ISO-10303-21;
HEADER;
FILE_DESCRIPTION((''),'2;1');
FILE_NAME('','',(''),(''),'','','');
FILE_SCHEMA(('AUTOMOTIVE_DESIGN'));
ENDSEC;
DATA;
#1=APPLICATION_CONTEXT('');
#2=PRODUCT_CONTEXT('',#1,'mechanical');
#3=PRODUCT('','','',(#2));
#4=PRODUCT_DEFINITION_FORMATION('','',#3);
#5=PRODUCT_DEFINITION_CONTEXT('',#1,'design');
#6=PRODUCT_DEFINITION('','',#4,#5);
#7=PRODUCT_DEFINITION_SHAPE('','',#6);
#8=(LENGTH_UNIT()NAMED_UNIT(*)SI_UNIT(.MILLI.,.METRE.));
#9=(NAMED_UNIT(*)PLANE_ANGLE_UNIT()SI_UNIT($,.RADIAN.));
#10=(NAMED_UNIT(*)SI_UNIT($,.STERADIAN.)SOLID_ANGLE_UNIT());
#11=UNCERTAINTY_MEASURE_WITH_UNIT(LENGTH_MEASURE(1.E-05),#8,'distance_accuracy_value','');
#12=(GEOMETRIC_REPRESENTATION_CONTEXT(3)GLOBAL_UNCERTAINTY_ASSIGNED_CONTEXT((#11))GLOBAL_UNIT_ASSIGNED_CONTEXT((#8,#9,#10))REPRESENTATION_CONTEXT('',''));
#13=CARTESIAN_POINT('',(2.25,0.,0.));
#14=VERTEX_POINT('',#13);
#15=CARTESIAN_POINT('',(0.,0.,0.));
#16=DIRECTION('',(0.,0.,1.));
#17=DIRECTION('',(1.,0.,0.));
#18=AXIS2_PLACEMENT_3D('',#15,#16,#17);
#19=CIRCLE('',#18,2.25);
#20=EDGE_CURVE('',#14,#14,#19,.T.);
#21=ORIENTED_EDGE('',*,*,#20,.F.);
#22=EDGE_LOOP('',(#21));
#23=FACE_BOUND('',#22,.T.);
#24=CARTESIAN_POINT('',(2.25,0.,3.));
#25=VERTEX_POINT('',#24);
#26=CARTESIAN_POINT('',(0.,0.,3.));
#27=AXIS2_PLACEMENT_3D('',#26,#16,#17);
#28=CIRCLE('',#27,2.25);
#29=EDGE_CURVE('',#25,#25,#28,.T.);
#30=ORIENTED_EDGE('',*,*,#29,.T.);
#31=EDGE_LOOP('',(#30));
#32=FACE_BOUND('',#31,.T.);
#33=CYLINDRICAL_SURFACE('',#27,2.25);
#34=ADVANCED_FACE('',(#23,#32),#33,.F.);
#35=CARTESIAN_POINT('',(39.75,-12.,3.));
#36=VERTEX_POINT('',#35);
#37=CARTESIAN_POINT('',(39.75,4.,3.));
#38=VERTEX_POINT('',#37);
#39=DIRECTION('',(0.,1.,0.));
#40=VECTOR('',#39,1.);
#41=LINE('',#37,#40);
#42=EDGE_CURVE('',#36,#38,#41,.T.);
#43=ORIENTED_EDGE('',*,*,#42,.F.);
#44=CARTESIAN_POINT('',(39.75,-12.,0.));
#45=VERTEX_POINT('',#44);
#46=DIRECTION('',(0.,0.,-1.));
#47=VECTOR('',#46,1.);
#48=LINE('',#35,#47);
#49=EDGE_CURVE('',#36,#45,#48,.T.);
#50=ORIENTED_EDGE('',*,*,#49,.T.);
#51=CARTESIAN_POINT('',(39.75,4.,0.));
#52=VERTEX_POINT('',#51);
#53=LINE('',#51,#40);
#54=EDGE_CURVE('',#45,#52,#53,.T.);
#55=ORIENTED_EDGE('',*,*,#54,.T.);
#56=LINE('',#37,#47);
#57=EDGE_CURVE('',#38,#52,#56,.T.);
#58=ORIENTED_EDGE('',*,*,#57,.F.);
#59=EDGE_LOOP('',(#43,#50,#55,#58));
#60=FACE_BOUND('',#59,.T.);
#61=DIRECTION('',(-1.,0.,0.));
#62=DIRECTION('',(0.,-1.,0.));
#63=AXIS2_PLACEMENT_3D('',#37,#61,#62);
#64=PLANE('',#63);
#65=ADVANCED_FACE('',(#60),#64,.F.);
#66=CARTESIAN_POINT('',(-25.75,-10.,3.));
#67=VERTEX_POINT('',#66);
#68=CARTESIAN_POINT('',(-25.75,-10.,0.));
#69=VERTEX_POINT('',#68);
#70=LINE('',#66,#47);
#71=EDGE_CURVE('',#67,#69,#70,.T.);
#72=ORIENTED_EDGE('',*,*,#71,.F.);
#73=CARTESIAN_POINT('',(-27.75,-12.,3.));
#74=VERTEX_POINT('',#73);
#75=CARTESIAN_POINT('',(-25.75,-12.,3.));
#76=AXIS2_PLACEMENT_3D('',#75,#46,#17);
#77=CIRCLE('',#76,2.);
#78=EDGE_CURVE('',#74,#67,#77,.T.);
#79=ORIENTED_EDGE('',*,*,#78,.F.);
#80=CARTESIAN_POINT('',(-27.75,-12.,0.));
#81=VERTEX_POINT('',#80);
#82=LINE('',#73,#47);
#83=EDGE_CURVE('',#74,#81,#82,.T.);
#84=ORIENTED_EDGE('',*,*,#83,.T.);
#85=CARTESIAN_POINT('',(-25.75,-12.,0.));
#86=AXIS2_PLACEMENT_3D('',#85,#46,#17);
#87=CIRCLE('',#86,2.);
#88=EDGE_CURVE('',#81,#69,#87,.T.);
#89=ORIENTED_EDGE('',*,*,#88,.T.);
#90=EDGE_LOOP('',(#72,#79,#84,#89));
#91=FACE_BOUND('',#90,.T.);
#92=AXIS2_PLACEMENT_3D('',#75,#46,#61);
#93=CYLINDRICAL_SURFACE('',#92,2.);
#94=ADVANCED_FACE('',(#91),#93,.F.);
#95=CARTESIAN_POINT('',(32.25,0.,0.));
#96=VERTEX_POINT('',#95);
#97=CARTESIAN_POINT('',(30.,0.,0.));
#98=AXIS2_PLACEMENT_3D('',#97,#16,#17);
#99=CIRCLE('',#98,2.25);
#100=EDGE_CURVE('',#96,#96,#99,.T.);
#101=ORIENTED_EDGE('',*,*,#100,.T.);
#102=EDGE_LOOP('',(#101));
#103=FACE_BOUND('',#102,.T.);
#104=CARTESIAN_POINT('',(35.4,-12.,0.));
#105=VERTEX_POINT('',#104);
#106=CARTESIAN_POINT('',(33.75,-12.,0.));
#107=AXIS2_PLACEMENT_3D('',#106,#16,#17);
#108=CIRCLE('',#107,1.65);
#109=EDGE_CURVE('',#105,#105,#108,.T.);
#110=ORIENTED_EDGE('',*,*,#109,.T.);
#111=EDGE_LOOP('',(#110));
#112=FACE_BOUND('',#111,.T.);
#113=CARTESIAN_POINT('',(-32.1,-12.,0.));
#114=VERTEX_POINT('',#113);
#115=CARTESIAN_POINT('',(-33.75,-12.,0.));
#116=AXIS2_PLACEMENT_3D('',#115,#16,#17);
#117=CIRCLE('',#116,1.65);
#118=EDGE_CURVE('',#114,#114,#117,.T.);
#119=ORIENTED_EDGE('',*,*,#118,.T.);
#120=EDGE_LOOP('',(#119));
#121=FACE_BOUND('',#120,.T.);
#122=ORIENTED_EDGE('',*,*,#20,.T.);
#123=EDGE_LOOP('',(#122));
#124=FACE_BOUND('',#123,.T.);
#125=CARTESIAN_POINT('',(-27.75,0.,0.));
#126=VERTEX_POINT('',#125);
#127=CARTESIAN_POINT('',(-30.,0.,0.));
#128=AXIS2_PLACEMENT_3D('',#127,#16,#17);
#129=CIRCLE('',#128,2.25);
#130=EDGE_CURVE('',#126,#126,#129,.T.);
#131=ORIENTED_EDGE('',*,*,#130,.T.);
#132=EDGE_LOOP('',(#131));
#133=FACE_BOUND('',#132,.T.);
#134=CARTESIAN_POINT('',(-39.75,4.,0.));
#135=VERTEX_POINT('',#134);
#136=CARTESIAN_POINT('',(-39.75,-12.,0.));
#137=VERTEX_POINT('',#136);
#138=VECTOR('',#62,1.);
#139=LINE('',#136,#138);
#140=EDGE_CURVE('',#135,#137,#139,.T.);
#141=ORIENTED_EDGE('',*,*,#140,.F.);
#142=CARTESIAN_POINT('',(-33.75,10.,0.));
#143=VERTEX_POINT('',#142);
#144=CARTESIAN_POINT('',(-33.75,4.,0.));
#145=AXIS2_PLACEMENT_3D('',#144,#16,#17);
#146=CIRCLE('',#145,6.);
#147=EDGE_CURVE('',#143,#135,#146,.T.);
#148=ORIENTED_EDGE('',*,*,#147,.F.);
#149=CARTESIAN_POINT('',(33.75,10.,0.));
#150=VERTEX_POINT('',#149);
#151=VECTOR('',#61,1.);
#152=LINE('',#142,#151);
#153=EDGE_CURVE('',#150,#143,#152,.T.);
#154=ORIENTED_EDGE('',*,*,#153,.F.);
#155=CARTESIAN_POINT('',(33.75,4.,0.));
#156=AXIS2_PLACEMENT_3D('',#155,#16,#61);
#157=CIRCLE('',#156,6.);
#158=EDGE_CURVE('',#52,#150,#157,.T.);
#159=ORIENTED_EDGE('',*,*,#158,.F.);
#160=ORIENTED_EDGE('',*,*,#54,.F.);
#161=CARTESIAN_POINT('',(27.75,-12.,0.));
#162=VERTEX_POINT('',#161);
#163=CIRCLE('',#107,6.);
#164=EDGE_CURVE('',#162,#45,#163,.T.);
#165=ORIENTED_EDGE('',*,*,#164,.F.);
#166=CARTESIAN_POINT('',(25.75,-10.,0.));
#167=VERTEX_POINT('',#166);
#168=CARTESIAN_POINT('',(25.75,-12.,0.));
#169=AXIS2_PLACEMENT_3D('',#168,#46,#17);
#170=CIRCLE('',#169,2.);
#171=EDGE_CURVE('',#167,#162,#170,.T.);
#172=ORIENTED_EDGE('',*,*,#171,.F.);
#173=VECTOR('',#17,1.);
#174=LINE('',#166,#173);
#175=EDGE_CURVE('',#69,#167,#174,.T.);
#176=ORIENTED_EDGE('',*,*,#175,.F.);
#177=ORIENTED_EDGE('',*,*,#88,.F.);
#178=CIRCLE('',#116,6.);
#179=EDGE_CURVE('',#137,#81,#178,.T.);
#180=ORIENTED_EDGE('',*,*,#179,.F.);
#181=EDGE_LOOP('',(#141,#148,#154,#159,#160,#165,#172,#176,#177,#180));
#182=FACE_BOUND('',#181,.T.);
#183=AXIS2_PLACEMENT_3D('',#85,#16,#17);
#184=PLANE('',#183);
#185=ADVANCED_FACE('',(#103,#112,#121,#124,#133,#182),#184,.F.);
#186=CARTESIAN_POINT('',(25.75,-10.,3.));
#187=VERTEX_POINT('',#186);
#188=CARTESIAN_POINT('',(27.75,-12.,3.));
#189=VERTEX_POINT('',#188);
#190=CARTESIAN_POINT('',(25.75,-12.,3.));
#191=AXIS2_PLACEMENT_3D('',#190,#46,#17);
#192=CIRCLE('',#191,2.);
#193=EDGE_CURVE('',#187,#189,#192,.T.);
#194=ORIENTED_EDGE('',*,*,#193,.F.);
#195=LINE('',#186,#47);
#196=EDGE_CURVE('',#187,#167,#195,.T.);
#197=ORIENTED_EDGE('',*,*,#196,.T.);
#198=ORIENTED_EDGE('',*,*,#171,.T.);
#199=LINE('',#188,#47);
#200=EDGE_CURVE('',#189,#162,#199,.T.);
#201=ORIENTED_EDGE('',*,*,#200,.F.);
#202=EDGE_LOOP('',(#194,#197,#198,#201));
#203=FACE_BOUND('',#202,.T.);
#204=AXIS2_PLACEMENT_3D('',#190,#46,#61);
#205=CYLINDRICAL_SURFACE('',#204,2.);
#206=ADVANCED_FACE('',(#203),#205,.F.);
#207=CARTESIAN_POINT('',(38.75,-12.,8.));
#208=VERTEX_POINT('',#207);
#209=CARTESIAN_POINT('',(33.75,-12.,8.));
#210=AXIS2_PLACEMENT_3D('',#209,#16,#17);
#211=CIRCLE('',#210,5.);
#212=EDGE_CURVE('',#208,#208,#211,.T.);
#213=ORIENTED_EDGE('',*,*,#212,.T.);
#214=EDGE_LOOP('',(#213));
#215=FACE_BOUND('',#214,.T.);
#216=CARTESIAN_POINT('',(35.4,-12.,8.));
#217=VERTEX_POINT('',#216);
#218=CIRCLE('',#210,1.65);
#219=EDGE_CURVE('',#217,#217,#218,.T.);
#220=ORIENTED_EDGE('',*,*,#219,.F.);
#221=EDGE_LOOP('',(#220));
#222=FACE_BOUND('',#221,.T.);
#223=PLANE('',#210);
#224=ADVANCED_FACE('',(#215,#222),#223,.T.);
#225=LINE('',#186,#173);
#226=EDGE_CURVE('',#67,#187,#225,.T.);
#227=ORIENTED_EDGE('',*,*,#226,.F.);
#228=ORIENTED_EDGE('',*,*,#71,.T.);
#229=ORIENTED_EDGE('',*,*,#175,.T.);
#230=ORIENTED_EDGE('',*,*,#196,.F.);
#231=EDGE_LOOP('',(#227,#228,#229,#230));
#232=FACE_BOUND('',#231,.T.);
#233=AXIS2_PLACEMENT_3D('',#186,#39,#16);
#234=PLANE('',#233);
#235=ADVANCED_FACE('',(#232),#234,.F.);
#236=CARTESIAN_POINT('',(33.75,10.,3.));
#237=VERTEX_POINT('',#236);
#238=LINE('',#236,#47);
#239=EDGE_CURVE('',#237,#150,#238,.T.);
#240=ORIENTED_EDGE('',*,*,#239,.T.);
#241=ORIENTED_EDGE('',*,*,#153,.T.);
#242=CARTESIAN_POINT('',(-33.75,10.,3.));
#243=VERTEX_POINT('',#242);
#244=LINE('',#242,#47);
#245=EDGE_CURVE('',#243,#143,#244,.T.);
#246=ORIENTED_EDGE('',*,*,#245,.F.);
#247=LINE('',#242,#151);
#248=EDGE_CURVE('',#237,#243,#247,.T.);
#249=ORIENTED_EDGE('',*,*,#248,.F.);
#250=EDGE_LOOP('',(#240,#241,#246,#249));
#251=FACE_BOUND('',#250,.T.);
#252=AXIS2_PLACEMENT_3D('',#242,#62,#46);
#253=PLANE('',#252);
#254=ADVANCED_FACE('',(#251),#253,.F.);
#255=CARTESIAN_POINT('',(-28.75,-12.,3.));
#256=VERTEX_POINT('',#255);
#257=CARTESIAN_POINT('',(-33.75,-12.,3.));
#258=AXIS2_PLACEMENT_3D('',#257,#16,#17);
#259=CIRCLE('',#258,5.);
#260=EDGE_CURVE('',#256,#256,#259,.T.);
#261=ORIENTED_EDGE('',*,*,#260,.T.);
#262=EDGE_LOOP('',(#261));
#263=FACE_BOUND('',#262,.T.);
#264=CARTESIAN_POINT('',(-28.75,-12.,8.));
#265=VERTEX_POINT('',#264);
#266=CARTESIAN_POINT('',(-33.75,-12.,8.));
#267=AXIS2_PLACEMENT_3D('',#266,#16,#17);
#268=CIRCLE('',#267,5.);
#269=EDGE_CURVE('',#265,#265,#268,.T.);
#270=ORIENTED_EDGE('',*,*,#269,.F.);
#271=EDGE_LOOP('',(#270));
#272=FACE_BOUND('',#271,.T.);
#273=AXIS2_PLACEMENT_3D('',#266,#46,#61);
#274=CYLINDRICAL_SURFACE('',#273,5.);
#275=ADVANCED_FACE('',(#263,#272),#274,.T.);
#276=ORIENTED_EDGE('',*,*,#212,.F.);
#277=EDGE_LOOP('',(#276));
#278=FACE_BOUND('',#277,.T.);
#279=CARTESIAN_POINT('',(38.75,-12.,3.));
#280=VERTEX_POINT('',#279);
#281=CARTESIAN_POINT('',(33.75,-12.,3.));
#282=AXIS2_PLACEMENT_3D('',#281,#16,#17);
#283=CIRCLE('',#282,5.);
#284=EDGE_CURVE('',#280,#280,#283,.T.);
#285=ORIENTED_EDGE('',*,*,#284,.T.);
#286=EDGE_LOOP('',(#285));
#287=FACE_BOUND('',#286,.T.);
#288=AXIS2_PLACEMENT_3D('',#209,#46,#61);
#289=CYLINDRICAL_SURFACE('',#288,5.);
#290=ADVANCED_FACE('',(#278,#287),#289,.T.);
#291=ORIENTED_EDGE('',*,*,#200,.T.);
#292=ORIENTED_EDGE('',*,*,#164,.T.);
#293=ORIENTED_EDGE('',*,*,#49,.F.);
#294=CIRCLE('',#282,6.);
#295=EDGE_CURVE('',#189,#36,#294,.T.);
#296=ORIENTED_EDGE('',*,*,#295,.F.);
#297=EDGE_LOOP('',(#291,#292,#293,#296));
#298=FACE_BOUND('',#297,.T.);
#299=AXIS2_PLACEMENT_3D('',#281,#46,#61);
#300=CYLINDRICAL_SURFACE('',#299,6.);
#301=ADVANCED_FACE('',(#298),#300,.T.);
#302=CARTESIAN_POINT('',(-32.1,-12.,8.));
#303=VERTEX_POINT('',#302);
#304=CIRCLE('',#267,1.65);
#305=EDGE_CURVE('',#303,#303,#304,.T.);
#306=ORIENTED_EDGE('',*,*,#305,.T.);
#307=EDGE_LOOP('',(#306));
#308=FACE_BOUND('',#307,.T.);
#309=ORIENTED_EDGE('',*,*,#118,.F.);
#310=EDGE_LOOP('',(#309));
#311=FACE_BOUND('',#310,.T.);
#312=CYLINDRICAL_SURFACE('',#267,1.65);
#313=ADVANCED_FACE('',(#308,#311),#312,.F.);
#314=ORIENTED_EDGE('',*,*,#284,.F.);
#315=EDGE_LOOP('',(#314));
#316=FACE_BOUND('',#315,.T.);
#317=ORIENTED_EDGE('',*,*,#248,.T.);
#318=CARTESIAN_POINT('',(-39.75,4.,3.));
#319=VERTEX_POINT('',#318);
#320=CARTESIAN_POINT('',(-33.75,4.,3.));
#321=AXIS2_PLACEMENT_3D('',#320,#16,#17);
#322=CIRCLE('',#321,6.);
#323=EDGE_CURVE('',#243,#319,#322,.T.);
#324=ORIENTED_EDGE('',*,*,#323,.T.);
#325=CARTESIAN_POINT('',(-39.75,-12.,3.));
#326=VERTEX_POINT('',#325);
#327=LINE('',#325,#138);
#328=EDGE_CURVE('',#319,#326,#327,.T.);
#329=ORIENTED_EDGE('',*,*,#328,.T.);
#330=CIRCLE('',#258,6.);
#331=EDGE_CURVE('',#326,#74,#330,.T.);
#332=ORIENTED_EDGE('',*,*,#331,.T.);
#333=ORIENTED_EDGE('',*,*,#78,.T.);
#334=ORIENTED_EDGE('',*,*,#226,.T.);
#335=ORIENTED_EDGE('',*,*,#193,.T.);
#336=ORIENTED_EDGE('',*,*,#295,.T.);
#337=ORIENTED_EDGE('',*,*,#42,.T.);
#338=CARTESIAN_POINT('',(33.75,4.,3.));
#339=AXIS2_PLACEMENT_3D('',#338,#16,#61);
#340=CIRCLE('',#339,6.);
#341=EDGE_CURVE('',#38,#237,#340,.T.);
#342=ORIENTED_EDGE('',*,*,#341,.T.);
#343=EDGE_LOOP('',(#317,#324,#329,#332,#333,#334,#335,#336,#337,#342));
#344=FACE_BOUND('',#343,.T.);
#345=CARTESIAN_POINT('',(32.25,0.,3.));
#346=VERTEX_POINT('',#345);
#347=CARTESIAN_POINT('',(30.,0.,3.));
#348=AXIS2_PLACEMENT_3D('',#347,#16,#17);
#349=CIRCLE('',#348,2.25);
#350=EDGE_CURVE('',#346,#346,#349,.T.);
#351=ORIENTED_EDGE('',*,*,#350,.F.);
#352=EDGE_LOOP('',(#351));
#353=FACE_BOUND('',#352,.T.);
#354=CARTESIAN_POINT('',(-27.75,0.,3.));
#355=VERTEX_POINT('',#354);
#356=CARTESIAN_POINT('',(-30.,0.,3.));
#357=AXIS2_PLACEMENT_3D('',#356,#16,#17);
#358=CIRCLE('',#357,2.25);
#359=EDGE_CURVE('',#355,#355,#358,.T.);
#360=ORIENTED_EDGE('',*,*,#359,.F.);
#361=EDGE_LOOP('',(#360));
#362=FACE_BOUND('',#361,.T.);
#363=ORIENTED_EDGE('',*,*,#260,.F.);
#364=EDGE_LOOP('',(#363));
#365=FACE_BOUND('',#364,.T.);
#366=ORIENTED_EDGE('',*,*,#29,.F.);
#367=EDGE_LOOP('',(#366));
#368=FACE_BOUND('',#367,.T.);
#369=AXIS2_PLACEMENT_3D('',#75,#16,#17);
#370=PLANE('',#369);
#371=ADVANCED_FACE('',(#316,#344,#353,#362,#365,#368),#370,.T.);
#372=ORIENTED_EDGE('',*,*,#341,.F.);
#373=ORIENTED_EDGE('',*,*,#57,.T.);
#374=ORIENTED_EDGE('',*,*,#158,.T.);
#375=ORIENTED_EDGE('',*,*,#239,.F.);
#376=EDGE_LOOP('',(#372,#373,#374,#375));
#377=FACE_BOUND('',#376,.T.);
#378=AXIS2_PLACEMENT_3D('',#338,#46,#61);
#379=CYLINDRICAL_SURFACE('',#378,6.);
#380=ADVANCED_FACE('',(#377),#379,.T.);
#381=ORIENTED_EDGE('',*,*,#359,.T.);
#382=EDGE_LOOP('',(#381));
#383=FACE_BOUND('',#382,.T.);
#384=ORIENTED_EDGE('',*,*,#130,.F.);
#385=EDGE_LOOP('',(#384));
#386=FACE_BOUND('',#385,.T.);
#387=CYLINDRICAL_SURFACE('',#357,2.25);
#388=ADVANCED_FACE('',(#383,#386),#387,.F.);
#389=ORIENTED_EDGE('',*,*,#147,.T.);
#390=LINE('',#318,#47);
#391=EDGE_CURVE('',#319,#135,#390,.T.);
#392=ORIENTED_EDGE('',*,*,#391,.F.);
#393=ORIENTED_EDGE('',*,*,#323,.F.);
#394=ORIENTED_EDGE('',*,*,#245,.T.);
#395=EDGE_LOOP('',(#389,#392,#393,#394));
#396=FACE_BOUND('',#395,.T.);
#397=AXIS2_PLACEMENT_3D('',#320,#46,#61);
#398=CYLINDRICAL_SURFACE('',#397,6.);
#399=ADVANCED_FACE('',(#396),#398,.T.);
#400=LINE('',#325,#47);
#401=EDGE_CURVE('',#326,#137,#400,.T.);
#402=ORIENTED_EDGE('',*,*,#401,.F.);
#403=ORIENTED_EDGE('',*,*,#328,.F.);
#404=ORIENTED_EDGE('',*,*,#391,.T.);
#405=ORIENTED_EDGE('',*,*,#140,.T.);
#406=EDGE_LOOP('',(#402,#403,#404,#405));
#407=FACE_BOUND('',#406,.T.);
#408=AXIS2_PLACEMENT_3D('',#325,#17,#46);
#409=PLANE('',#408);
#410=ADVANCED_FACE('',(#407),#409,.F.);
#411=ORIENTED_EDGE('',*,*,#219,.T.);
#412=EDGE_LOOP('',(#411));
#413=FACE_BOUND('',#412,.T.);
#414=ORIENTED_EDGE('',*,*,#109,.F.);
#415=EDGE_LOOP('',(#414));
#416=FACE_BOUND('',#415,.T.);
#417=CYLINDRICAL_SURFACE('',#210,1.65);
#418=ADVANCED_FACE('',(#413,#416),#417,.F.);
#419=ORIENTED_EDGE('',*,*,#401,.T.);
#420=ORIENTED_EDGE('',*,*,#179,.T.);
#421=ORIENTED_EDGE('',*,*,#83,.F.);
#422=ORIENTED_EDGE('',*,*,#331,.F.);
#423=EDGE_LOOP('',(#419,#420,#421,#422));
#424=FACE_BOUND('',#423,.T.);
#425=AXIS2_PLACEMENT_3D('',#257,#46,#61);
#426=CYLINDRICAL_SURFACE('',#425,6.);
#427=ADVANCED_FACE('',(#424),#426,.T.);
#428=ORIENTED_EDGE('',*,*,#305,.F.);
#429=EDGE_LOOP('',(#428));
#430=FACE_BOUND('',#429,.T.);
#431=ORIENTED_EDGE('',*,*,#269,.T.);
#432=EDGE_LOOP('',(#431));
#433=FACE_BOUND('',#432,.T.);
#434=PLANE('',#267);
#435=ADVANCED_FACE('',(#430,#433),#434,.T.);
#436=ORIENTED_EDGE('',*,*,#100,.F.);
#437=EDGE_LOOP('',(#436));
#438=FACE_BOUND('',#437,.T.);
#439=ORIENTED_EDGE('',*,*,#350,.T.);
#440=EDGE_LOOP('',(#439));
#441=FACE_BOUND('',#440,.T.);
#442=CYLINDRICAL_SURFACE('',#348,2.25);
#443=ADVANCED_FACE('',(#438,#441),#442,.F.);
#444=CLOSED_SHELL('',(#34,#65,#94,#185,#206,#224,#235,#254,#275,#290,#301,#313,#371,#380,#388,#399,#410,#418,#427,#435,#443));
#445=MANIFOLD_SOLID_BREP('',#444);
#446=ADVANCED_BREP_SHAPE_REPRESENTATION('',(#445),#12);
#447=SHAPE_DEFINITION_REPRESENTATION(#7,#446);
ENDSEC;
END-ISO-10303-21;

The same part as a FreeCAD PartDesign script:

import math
import FreeCAD as App
import Part
import Sketcher
from FreeCAD import Vector

doc = App.newDocument("Part")
body = doc.addObject("PartDesign::Body", "Body")

# Sketch on XY plane
sketch1 = doc.addObject("Sketcher::SketchObject", "Sketch")
body.addObject(sketch1)
sketch1.AttachmentSupport = (doc.XY_Plane, [""])
sketch1.MapMode = "FlatFace"
sketch1.addGeometry(Part.LineSegment(Vector(33.8, 10, 0), Vector(-33.8, 10, 0)), False)
sketch1.addGeometry(Part.ArcOfCircle(Part.Circle(Vector(-33.8, 4, 0), Vector(0, 0, 1), 6), math.radians(90), math.radians(180)), False)
sketch1.addGeometry(Part.LineSegment(Vector(-39.8, 4, 0), Vector(-39.8, -12, 0)), False)
sketch1.addGeometry(Part.ArcOfCircle(Part.Circle(Vector(-33.8, -12, 0), Vector(0, 0, 1), 6), math.radians(180), math.radians(360)), False)
sketch1.addGeometry(Part.ArcOfCircle(Part.Circle(Vector(-25.7, -12, 0), Vector(0, 0, 1), 2), math.radians(90), math.radians(180)), False)
sketch1.addGeometry(Part.LineSegment(Vector(-25.8, -10, 0), Vector(25.8, -10, 0)), False)
sketch1.addGeometry(Part.ArcOfCircle(Part.Circle(Vector(25.7, -12, 0), Vector(0, 0, 1), 2), math.radians(0), math.radians(90)), False)
sketch1.addGeometry(Part.ArcOfCircle(Part.Circle(Vector(33.8, -12, 0), Vector(0, 0, 1), 6), math.radians(180), math.radians(360)), False)
sketch1.addGeometry(Part.LineSegment(Vector(39.8, -12, 0), Vector(39.8, 4, 0)), False)
sketch1.addGeometry(Part.ArcOfCircle(Part.Circle(Vector(33.8, 4, 0), Vector(0, 0, 1), 6), math.radians(0), math.radians(90)), False)
sketch1.addConstraint(Sketcher.Constraint("Tangent", 0, 2, 1, 1))
sketch1.addConstraint(Sketcher.Constraint("Tangent", 1, 2, 2, 1))
sketch1.addConstraint(Sketcher.Constraint("Tangent", 2, 2, 3, 1))
sketch1.addConstraint(Sketcher.Constraint("Tangent", 3, 2, 4, 2))
sketch1.addConstraint(Sketcher.Constraint("Tangent", 4, 1, 5, 1))
sketch1.addConstraint(Sketcher.Constraint("Tangent", 5, 2, 6, 2))
sketch1.addConstraint(Sketcher.Constraint("Tangent", 6, 1, 7, 1))
sketch1.addConstraint(Sketcher.Constraint("Tangent", 7, 2, 8, 1))
sketch1.addConstraint(Sketcher.Constraint("Tangent", 8, 2, 9, 1))
sketch1.addConstraint(Sketcher.Constraint("Tangent", 9, 2, 0, 1))
sketch1.addConstraint(Sketcher.Constraint("Horizontal", 0))
sketch1.addConstraint(Sketcher.Constraint("Vertical", 2))
sketch1.addConstraint(Sketcher.Constraint("Horizontal", 5))
sketch1.addConstraint(Sketcher.Constraint("Vertical", 8))
sketch1.addConstraint(Sketcher.Constraint("Equal", 1, 3))
sketch1.addConstraint(Sketcher.Constraint("Equal", 4, 6))
sketch1.addConstraint(Sketcher.Constraint("Equal", 3, 7))
sketch1.addConstraint(Sketcher.Constraint("Equal", 7, 9))
sketch1.addConstraint(Sketcher.Constraint("Symmetric", 3, 3, 7, 3, -2))
sketch1.addConstraint(Sketcher.Constraint("Horizontal", 3, 3, 4, 3))
sketch1.addConstraint(Sketcher.Constraint("Radius", 1, 6.0))
sketch1.addConstraint(Sketcher.Constraint("Radius", 4, 2.0))
sketch1.addConstraint(Sketcher.Constraint("DistanceY", 2, 2, 2, 1, 16.0))
sketch1.addConstraint(Sketcher.Constraint("DistanceX", 0, 2, 0, 1, 67.5))
sketch1.addConstraint(Sketcher.Constraint("DistanceY", -1, 1, 1, 3, 4.0))
pad1 = doc.addObject("PartDesign::Pad", "Pad")
body.addObject(pad1)
pad1.Profile = sketch1
pad1.Length = 3

# Sketch on XY plane
sketch2 = doc.addObject("Sketcher::SketchObject", "Sketch001")
body.addObject(sketch2)
sketch2.AttachmentSupport = (doc.XY_Plane, [""])
sketch2.MapMode = "FlatFace"
sketch2.AttachmentOffset = App.Placement(Vector(0, 0, 3), App.Rotation())
sketch2.addGeometry(Part.Circle(Vector(-34, -12, 0), Vector(0, 0, 1), 5), False)
sketch2.addGeometry(Part.Circle(Vector(34, -12, 0), Vector(0, 0, 1), 5), False)
sketch2.addConstraint(Sketcher.Constraint("Equal", 0, 1))
sketch2.addConstraint(Sketcher.Constraint("Symmetric", 0, 3, 1, 3, -2))
sketch2.addConstraint(Sketcher.Constraint("Diameter", 0, 10.0))
sketch2.addConstraint(Sketcher.Constraint("DistanceY", 0, 3, -1, 1, 12.0))
sketch2.addConstraint(Sketcher.Constraint("DistanceX", 0, 3, 1, 3, 67.5))
pad2 = doc.addObject("PartDesign::Pad", "Pad001")
body.addObject(pad2)
pad2.Profile = sketch2
pad2.Length = 5

# Sketch on XY plane
sketch3 = doc.addObject("Sketcher::SketchObject", "Sketch002")
body.addObject(sketch3)
sketch3.AttachmentSupport = (doc.XY_Plane, [""])
sketch3.MapMode = "FlatFace"
sketch3.AttachmentOffset = App.Placement(Vector(0, 0, 8), App.Rotation())
sketch3.addGeometry(Part.Circle(Vector(-33.8, -12, 0), Vector(0, 0, 1), 1.6), False)
sketch3.addGeometry(Part.Circle(Vector(33.8, -12, 0), Vector(0, 0, 1), 1.6), False)
sketch3.addConstraint(Sketcher.Constraint("Equal", 0, 1))
sketch3.addConstraint(Sketcher.Constraint("Symmetric", 0, 3, 1, 3, -2))
sketch3.addConstraint(Sketcher.Constraint("Diameter", 0, 3.3))
sketch3.addConstraint(Sketcher.Constraint("DistanceY", 0, 3, -1, 1, 12.0))
sketch3.addConstraint(Sketcher.Constraint("DistanceX", 0, 3, 1, 3, 67.5))
doc.recompute()
hole = doc.addObject("PartDesign::Hole", "Hole")
body.addObject(hole)
hole.Profile = sketch3
hole.ThreadType = "None"
hole.Diameter = 3.3
hole.DepthType = "ThroughAll"

# Sketch on XY plane
sketch4 = doc.addObject("Sketcher::SketchObject", "Sketch003")
body.addObject(sketch4)
sketch4.AttachmentSupport = (doc.XY_Plane, [""])
sketch4.MapMode = "FlatFace"
sketch4.AttachmentOffset = App.Placement(Vector(0, 0, 3), App.Rotation())
sketch4.addGeometry(Part.Circle(Vector(-30, 0, 0), Vector(0, 0, 1), 2.2), False)
sketch4.addGeometry(Part.Circle(Vector(30, 0, 0), Vector(0, 0, 1), 2.2), False)
sketch4.addGeometry(Part.Circle(Vector(0, 0, 0), Vector(0, 0, 1), 2.2), False)
sketch4.addConstraint(Sketcher.Constraint("Coincident", 2, 3, -1, 1))
sketch4.addConstraint(Sketcher.Constraint("Equal", 0, 1))
sketch4.addConstraint(Sketcher.Constraint("Equal", 1, 2))
sketch4.addConstraint(Sketcher.Constraint("Symmetric", 0, 3, 1, 3, -1, 1))
sketch4.addConstraint(Sketcher.Constraint("PointOnObject", 0, 3, -1))
sketch4.addConstraint(Sketcher.Constraint("Diameter", 0, 4.5))
sketch4.addConstraint(Sketcher.Constraint("DistanceX", 0, 3, -1, 1, 30.0))
doc.recompute()
hole2 = doc.addObject("PartDesign::Hole", "Hole001")
body.addObject(hole2)
hole2.Profile = sketch4
hole2.ThreadType = "None"
hole2.Diameter = 4.5
hole2.DepthType = "ThroughAll"

doc.recompute()
